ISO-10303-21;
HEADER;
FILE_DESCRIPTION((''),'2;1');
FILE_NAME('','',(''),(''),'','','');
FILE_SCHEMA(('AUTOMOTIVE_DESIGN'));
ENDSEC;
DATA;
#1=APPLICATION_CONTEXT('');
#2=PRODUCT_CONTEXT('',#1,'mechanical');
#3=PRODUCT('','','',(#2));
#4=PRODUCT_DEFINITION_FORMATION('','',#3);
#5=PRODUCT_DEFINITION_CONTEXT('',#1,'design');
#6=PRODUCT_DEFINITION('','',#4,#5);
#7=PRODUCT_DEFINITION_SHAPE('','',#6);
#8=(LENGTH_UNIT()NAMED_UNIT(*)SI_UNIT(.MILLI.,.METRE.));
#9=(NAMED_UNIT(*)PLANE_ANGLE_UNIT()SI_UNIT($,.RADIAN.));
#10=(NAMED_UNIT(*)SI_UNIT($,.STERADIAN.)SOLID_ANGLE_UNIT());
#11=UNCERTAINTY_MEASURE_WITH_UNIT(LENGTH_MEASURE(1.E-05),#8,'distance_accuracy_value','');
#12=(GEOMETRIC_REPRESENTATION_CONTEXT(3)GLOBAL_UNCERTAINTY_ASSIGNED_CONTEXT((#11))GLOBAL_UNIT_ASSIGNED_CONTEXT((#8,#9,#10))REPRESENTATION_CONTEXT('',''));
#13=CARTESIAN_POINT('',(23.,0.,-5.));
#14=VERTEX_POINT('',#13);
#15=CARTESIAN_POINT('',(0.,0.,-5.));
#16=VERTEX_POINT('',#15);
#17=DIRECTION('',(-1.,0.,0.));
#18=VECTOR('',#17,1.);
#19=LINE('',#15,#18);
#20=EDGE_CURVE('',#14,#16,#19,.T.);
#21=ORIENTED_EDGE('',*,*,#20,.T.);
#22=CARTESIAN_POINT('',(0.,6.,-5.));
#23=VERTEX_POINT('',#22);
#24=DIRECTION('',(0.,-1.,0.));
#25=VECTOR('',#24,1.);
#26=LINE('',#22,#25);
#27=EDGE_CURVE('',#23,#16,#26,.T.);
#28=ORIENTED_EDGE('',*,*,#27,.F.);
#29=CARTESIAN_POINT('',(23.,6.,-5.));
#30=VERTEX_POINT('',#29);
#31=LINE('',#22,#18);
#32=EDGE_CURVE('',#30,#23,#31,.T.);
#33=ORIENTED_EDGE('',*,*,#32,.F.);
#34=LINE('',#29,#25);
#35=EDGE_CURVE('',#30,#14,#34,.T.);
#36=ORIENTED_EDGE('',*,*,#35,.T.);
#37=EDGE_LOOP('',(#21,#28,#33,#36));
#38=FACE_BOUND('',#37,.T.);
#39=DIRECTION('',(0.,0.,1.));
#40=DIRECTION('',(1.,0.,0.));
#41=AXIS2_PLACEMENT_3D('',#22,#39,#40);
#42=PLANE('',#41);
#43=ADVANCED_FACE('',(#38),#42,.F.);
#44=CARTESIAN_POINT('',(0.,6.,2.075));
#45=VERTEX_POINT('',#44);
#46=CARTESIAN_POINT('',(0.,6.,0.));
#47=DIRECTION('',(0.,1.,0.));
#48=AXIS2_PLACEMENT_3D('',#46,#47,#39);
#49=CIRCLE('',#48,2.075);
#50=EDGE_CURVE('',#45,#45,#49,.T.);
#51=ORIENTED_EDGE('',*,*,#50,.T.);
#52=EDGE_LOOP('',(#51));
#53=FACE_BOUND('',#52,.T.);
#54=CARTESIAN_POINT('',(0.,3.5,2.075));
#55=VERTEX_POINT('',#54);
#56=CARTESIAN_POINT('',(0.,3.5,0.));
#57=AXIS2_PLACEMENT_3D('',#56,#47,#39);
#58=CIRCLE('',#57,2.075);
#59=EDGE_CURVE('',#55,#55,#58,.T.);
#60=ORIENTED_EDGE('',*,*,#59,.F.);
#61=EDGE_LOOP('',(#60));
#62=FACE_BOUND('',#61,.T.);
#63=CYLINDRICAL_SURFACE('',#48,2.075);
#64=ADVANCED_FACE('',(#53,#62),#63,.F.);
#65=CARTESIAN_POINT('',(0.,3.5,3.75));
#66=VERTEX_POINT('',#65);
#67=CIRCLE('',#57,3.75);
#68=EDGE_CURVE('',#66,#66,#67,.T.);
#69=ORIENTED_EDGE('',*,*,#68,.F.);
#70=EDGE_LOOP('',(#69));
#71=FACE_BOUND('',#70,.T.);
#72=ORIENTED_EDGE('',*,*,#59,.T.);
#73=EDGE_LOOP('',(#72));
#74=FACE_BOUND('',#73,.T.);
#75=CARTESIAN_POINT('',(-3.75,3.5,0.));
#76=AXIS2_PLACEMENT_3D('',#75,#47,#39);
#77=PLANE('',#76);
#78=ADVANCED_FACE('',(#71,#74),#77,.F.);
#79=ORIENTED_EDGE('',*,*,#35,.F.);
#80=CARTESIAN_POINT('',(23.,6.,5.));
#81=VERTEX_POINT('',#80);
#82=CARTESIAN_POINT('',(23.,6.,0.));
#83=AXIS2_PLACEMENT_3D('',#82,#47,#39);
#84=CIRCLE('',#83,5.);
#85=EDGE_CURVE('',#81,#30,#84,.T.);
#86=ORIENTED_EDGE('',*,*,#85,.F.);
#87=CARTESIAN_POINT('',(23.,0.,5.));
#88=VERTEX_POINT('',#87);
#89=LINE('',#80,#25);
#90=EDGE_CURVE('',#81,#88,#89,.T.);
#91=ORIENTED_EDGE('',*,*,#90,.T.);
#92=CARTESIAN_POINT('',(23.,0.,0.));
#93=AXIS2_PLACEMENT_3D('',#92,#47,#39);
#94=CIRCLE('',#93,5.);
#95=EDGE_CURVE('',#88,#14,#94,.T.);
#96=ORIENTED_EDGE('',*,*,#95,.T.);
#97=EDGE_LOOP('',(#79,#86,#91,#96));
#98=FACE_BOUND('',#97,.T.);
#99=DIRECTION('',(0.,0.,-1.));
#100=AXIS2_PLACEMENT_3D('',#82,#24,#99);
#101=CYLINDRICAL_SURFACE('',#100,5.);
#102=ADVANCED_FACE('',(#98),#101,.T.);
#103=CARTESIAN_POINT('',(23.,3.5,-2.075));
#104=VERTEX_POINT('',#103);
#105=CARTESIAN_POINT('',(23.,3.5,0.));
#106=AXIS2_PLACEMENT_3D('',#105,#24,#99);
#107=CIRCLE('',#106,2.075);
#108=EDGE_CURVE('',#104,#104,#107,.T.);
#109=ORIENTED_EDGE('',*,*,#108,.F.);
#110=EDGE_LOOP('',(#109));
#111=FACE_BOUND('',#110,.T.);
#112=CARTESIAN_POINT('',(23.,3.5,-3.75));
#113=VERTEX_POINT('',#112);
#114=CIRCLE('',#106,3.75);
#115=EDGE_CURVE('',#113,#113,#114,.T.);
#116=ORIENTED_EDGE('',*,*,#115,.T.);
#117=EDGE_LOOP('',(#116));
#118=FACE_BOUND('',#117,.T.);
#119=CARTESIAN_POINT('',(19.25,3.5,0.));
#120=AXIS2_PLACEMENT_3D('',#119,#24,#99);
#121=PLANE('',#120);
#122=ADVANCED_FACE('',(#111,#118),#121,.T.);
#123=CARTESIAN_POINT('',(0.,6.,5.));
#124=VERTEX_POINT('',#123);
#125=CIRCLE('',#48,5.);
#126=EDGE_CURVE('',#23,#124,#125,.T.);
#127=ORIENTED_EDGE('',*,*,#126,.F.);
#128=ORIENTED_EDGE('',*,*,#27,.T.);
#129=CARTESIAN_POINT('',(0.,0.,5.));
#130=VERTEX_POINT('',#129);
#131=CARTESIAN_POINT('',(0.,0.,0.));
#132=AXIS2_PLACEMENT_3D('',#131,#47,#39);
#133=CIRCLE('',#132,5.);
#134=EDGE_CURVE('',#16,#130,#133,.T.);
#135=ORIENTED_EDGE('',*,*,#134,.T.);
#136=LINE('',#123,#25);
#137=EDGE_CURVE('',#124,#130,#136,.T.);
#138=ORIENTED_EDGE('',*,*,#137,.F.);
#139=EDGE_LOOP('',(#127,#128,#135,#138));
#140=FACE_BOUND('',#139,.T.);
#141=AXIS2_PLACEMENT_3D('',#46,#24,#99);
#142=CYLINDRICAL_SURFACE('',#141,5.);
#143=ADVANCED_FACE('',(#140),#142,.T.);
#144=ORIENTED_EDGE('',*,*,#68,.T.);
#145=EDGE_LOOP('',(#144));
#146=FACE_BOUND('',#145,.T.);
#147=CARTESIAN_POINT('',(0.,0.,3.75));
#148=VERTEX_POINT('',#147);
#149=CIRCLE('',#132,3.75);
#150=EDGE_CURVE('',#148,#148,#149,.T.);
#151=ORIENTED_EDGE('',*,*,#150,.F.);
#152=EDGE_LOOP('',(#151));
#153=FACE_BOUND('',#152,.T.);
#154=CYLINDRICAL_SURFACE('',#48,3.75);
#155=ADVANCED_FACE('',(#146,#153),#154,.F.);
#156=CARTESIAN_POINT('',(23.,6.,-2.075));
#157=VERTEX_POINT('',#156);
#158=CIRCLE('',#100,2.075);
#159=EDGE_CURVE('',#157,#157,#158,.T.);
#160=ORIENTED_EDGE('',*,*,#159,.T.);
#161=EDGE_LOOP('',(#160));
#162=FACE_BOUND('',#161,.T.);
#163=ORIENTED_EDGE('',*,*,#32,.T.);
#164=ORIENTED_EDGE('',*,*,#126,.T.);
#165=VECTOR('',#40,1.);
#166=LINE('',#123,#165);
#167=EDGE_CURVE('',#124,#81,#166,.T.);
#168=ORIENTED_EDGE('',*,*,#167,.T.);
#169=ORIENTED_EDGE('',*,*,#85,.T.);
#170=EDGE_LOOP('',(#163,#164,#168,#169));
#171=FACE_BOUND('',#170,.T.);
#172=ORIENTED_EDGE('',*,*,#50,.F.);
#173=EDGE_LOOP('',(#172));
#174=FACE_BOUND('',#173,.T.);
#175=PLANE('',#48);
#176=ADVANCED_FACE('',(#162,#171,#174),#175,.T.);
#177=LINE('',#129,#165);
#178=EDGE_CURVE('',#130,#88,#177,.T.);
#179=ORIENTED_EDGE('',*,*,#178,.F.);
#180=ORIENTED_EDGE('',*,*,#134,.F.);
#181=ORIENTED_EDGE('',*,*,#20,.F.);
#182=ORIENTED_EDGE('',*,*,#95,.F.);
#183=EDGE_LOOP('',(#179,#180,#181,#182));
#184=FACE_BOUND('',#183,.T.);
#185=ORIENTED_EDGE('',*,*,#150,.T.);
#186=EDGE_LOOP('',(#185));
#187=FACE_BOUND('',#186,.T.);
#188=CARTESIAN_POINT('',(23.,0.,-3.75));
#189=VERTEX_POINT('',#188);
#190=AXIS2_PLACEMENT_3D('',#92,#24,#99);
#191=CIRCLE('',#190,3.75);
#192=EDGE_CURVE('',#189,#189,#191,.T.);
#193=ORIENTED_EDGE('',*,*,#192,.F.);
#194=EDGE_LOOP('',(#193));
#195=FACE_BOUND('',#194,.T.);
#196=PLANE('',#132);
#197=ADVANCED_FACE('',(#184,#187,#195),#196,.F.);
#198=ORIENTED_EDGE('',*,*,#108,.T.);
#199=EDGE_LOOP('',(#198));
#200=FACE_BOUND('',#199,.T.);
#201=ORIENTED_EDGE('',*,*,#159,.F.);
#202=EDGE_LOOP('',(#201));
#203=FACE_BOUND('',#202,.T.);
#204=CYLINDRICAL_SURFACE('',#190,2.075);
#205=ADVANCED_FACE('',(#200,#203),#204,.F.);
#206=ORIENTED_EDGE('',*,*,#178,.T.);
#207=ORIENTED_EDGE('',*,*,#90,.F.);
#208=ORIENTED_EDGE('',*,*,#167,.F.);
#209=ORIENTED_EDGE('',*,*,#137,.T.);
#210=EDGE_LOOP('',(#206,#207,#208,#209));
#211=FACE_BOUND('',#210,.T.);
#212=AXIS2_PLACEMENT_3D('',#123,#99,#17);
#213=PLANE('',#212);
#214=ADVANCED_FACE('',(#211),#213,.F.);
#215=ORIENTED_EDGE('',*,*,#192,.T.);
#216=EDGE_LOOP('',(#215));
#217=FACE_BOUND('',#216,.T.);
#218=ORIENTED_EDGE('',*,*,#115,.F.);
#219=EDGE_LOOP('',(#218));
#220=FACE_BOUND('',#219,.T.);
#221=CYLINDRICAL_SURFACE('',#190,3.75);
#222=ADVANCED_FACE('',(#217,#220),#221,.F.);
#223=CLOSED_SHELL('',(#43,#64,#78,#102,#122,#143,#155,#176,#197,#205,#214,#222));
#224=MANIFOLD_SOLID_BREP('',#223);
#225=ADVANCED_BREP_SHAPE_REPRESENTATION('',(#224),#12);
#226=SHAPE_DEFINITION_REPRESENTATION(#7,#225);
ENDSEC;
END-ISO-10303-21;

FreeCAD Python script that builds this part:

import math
import FreeCAD as App
import Part
import Sketcher

V = App.Vector
Q = App.Units.Quantity

doc = App.newDocument("Part")
body = doc.addObject("PartDesign::Body", "Body")

# Sketch on XZ plane
sketch1 = body.newObject("Sketcher::SketchObject", "Sketch")
sketch1.AttachmentSupport = (doc.getObject("XZ_Plane"), [""])
sketch1.MapMode = "FlatFace"
sketch1.addGeometry(Part.LineSegment(V(23, -5, 0), V(0, -5, 0)), False)
sketch1.addGeometry(Part.ArcOfCircle(Part.Circle(V(0, 0, 0), V(0, 0, 1), 5), math.radians(90), math.radians(270)), False)
sketch1.addGeometry(Part.LineSegment(V(0, 5, 0), V(23, 5, 0)), False)
sketch1.addGeometry(Part.ArcOfCircle(Part.Circle(V(23, 0, 0), V(0, 0, 1), 5), math.radians(-90), math.radians(90)), False)
sketch1.addConstraint(Sketcher.Constraint("Tangent", 0, 2, 1, 2))
sketch1.addConstraint(Sketcher.Constraint("Tangent", 1, 1, 2, 1))
sketch1.addConstraint(Sketcher.Constraint("Tangent", 2, 2, 3, 2))
sketch1.addConstraint(Sketcher.Constraint("Tangent", 3, 1, 0, 1))
sketch1.addConstraint(Sketcher.Constraint("Horizontal", 0))
sketch1.addConstraint(Sketcher.Constraint("Horizontal", 2))
sketch1.addConstraint(Sketcher.Constraint("Coincident", 1, 3, -1, 1))
sketch1.addConstraint(Sketcher.Constraint("Radius", 1, Q("5 mm")))
sketch1.addConstraint(Sketcher.Constraint("DistanceX", 0, 2, 0, 1, Q("23 mm")))
pad1 = body.newObject("PartDesign::Pad", "Pad")
pad1.Profile = sketch1
pad1.Length = 6
pad1.Reversed = True

# Sketch on XY plane
sketch2 = body.newObject("Sketcher::SketchObject", "Sketch001")
sketch2.AttachmentSupport = (doc.getObject("XY_Plane"), [""])
sketch2.MapMode = "FlatFace"
sketch2.addGeometry(Part.LineSegment(V(-3.8, 0, 0), V(0, 0, 0)), False)
sketch2.addGeometry(Part.LineSegment(V(0, 0, 0), V(0, 6, 0)), False)
sketch2.addGeometry(Part.LineSegment(V(0, 6, 0), V(-2.1, 6, 0)), False)
sketch2.addGeometry(Part.LineSegment(V(-2.1, 6, 0), V(-2.1, 3.5, 0)), False)
sketch2.addGeometry(Part.LineSegment(V(-2.1, 3.5, 0), V(-3.8, 3.5, 0)), False)
sketch2.addGeometry(Part.LineSegment(V(-3.8, 3.5, 0), V(-3.8, 0, 0)), False)
sketch2.addConstraint(Sketcher.Constraint("Coincident", 0, 2, 1, 1))
sketch2.addConstraint(Sketcher.Constraint("Coincident", 1, 2, 2, 1))
sketch2.addConstraint(Sketcher.Constraint("Coincident", 2, 2, 3, 1))
sketch2.addConstraint(Sketcher.Constraint("Coincident", 3, 2, 4, 1))
sketch2.addConstraint(Sketcher.Constraint("Coincident", 4, 2, 5, 1))
sketch2.addConstraint(Sketcher.Constraint("Coincident", 5, 2, 0, 1))
sketch2.addConstraint(Sketcher.Constraint("Horizontal", 0))
sketch2.addConstraint(Sketcher.Constraint("Vertical", 1))
sketch2.addConstraint(Sketcher.Constraint("Horizontal", 2))
sketch2.addConstraint(Sketcher.Constraint("Vertical", 3))
sketch2.addConstraint(Sketcher.Constraint("Horizontal", 4))
sketch2.addConstraint(Sketcher.Constraint("Vertical", 5))
sketch2.addConstraint(Sketcher.Constraint("Coincident", 0, 2, -1, 1))
sketch2.addConstraint(Sketcher.Constraint("DistanceY", 1, 1, 1, 2, Q("6 mm")))
sketch2.addConstraint(Sketcher.Constraint("DistanceY", 3, 2, 3, 1, Q("2.5 mm")))
sketch2.addConstraint(Sketcher.Constraint("DistanceX", 0, 1, 0, 2, Q("3.75 mm")))
sketch2.addConstraint(Sketcher.Constraint("DistanceX", 2, 2, 2, 1, Q("2.075 mm")))
groove = body.newObject("PartDesign::Groove", "Groove")
groove.Profile = sketch2
groove.ReferenceAxis = (sketch2, ["V_Axis"])
groove.Angle = 360

# Sketch on XY plane
sketch3 = body.newObject("Sketcher::SketchObject", "Sketch002")
sketch3.AttachmentSupport = (doc.getObject("XY_Plane"), [""])
sketch3.MapMode = "FlatFace"
sketch3.addGeometry(Part.LineSegment(V(19.2, 0, 0), V(23, 0, 0)), False)
sketch3.addGeometry(Part.LineSegment(V(23, 0, 0), V(23, 6, 0)), False)
sketch3.addGeometry(Part.LineSegment(V(23, 6, 0), V(20.9, 6, 0)), False)
sketch3.addGeometry(Part.LineSegment(V(20.9, 6, 0), V(20.9, 3.5, 0)), False)
sketch3.addGeometry(Part.LineSegment(V(20.9, 3.5, 0), V(19.2, 3.5, 0)), False)
sketch3.addGeometry(Part.LineSegment(V(19.2, 3.5, 0), V(19.2, 0, 0)), False)
sketch3.addGeometry(Part.LineSegment(V(23, 0, 0), V(23, 6, 0)), True)  # axis
sketch3.addConstraint(Sketcher.Constraint("Coincident", 0, 2, 1, 1))
sketch3.addConstraint(Sketcher.Constraint("Coincident", 1, 2, 2, 1))
sketch3.addConstraint(Sketcher.Constraint("Coincident", 2, 2, 3, 1))
sketch3.addConstraint(Sketcher.Constraint("Coincident", 3, 2, 4, 1))
sketch3.addConstraint(Sketcher.Constraint("Coincident", 4, 2, 5, 1))
sketch3.addConstraint(Sketcher.Constraint("Coincident", 5, 2, 0, 1))
sketch3.addConstraint(Sketcher.Constraint("Horizontal", 0))
sketch3.addConstraint(Sketcher.Constraint("Vertical", 1))
sketch3.addConstraint(Sketcher.Constraint("Horizontal", 2))
sketch3.addConstraint(Sketcher.Constraint("Vertical", 3))
sketch3.addConstraint(Sketcher.Constraint("Horizontal", 4))
sketch3.addConstraint(Sketcher.Constraint("Vertical", 5))
sketch3.addConstraint(Sketcher.Constraint("Vertical", 6))
sketch3.addConstraint(Sketcher.Constraint("Coincident", 6, 1, 0, 2))
sketch3.addConstraint(Sketcher.Constraint("PointOnObject", 0, 2, -1))
sketch3.addConstraint(Sketcher.Constraint("Horizontal", 2, 2, 6, 2))
sketch3.addConstraint(Sketcher.Constraint("DistanceY", 1, 1, 1, 2, Q("6 mm")))
sketch3.addConstraint(Sketcher.Constraint("DistanceY", 3, 2, 3, 1, Q("2.5 mm")))
sketch3.addConstraint(Sketcher.Constraint("DistanceX", -1, 1, 0, 2, Q("23 mm")))
sketch3.addConstraint(Sketcher.Constraint("DistanceX", 0, 1, 0, 2, Q("3.75 mm")))
sketch3.addConstraint(Sketcher.Constraint("DistanceX", 2, 2, 2, 1, Q("2.075 mm")))
groove2 = body.newObject("PartDesign::Groove", "Groove001")
groove2.Profile = sketch3
groove2.ReferenceAxis = (sketch3, ["Axis0"])
groove2.Angle = 360

doc.recompute()
